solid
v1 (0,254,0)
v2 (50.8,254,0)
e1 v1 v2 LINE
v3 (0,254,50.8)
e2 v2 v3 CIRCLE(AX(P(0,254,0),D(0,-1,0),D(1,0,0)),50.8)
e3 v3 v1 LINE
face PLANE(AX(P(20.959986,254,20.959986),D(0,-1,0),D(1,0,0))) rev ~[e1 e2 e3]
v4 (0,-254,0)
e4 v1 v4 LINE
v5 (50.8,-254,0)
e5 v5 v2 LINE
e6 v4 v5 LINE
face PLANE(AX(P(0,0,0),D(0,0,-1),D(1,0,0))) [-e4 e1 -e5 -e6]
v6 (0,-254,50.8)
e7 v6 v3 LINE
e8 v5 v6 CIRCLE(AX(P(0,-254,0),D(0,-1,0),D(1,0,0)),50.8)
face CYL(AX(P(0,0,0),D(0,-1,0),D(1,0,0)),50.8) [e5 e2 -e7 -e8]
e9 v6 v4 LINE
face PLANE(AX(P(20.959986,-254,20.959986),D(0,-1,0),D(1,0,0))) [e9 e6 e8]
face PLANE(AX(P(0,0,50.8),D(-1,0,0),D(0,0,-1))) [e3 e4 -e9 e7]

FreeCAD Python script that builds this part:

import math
import FreeCAD as App
import Part
import Sketcher
from FreeCAD import Vector
Q = App.Units.Quantity

doc = App.newDocument("Part")
body = doc.addObject("PartDesign::Body", "Body")

# Sketch on XZ plane
sketch1 = body.newObject("Sketcher::SketchObject", "Sketch")
sketch1.AttachmentSupport = (doc.getObject("XZ_Plane"), [""])
sketch1.MapMode = "FlatFace"
sketch1.addGeometry([
    Part.LineSegment(Vector(0, 51, 0), Vector(0, 0, 0)),
    Part.LineSegment(Vector(0, 0, 0), Vector(51, 0, 0)),
    Part.ArcOfCircle(Part.Circle(Vector(0, 0, 0), Vector(0, 0, 1), 51), math.radians(0), math.radians(90)),
], False)
sketch1.addConstraint([
    Sketcher.Constraint("Coincident", 0, 2, 1, 1),
    Sketcher.Constraint("Coincident", 1, 2, 2, 1),
    Sketcher.Constraint("Coincident", 2, 2, 0, 1),
    Sketcher.Constraint("Vertical", 0),
    Sketcher.Constraint("Horizontal", 1),
    Sketcher.Constraint("Coincident", 2, 3, -1, 1),
    Sketcher.Constraint("Coincident", 0, 2, -1, 1),
    Sketcher.Constraint("Radius", 2, Q("2 in")),
])
pad1 = body.newObject("PartDesign::Pad", "Pad")
pad1.Profile = sketch1
pad1.Length = Q("20 in")
pad1.Midplane = True

doc.recompute()
